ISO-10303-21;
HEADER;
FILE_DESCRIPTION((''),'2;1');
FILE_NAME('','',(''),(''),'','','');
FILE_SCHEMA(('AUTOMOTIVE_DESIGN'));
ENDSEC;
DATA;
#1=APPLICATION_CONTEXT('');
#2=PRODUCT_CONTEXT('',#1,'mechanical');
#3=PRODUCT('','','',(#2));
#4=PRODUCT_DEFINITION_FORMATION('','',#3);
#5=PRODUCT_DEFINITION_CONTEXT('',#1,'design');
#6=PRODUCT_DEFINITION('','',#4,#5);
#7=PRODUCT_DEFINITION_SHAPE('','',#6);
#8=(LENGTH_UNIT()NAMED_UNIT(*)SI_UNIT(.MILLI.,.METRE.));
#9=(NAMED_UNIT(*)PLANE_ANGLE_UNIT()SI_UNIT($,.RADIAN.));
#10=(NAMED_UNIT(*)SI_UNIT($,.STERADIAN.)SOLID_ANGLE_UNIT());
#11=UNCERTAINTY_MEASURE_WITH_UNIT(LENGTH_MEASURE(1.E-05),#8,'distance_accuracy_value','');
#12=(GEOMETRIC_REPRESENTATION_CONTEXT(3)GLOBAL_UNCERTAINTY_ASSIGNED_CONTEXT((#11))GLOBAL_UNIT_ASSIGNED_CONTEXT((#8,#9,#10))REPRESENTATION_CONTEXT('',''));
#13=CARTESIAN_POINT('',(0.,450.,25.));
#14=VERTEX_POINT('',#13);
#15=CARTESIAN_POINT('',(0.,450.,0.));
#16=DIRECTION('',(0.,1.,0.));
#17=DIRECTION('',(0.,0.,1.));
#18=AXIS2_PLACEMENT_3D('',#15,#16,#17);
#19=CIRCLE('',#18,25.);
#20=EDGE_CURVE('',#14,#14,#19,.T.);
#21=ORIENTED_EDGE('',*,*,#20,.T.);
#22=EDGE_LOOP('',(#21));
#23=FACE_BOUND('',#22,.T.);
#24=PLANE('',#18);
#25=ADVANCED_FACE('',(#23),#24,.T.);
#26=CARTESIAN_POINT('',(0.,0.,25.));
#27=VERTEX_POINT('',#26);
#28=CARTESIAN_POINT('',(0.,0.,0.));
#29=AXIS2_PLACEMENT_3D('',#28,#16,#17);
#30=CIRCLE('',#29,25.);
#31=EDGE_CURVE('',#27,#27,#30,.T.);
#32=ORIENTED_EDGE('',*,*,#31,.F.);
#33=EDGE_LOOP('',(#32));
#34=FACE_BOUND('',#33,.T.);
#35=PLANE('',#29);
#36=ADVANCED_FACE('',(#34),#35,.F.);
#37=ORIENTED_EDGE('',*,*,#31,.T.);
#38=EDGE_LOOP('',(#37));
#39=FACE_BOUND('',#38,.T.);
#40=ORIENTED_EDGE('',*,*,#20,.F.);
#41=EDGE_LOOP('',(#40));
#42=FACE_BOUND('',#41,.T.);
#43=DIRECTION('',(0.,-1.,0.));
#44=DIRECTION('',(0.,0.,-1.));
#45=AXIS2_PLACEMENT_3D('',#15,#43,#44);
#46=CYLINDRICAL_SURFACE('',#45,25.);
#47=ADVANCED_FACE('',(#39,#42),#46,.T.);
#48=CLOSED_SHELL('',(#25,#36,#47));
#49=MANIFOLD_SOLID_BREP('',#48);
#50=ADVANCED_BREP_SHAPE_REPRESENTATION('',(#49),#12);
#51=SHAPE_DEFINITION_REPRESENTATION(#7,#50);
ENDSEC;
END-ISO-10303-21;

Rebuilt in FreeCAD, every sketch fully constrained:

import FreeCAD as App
import Part
import Sketcher
from FreeCAD import Vector
Q = App.Units.Quantity

doc = App.newDocument("Part")
body = doc.addObject("PartDesign::Body", "Body")

# Sketch on XZ plane
sketch1 = doc.addObject("Sketcher::SketchObject", "Sketch")
body.addObject(sketch1)
sketch1.AttachmentSupport = (doc.XZ_Plane, [""])
sketch1.MapMode = "FlatFace"
sketch1.addGeometry(Part.Circle(Vector(0, 0, 0), Vector(0, 0, 1), 25), False)
sketch1.addConstraint(Sketcher.Constraint("Coincident", 0, 3, -1, 1))
sketch1.addConstraint(Sketcher.Constraint("Diameter", 0, Q("50 mm")))
pad1 = doc.addObject("PartDesign::Pad", "Pad")
body.addObject(pad1)
pad1.Profile = sketch1
pad1.Length = 450
pad1.Reversed = True

doc.recompute()
